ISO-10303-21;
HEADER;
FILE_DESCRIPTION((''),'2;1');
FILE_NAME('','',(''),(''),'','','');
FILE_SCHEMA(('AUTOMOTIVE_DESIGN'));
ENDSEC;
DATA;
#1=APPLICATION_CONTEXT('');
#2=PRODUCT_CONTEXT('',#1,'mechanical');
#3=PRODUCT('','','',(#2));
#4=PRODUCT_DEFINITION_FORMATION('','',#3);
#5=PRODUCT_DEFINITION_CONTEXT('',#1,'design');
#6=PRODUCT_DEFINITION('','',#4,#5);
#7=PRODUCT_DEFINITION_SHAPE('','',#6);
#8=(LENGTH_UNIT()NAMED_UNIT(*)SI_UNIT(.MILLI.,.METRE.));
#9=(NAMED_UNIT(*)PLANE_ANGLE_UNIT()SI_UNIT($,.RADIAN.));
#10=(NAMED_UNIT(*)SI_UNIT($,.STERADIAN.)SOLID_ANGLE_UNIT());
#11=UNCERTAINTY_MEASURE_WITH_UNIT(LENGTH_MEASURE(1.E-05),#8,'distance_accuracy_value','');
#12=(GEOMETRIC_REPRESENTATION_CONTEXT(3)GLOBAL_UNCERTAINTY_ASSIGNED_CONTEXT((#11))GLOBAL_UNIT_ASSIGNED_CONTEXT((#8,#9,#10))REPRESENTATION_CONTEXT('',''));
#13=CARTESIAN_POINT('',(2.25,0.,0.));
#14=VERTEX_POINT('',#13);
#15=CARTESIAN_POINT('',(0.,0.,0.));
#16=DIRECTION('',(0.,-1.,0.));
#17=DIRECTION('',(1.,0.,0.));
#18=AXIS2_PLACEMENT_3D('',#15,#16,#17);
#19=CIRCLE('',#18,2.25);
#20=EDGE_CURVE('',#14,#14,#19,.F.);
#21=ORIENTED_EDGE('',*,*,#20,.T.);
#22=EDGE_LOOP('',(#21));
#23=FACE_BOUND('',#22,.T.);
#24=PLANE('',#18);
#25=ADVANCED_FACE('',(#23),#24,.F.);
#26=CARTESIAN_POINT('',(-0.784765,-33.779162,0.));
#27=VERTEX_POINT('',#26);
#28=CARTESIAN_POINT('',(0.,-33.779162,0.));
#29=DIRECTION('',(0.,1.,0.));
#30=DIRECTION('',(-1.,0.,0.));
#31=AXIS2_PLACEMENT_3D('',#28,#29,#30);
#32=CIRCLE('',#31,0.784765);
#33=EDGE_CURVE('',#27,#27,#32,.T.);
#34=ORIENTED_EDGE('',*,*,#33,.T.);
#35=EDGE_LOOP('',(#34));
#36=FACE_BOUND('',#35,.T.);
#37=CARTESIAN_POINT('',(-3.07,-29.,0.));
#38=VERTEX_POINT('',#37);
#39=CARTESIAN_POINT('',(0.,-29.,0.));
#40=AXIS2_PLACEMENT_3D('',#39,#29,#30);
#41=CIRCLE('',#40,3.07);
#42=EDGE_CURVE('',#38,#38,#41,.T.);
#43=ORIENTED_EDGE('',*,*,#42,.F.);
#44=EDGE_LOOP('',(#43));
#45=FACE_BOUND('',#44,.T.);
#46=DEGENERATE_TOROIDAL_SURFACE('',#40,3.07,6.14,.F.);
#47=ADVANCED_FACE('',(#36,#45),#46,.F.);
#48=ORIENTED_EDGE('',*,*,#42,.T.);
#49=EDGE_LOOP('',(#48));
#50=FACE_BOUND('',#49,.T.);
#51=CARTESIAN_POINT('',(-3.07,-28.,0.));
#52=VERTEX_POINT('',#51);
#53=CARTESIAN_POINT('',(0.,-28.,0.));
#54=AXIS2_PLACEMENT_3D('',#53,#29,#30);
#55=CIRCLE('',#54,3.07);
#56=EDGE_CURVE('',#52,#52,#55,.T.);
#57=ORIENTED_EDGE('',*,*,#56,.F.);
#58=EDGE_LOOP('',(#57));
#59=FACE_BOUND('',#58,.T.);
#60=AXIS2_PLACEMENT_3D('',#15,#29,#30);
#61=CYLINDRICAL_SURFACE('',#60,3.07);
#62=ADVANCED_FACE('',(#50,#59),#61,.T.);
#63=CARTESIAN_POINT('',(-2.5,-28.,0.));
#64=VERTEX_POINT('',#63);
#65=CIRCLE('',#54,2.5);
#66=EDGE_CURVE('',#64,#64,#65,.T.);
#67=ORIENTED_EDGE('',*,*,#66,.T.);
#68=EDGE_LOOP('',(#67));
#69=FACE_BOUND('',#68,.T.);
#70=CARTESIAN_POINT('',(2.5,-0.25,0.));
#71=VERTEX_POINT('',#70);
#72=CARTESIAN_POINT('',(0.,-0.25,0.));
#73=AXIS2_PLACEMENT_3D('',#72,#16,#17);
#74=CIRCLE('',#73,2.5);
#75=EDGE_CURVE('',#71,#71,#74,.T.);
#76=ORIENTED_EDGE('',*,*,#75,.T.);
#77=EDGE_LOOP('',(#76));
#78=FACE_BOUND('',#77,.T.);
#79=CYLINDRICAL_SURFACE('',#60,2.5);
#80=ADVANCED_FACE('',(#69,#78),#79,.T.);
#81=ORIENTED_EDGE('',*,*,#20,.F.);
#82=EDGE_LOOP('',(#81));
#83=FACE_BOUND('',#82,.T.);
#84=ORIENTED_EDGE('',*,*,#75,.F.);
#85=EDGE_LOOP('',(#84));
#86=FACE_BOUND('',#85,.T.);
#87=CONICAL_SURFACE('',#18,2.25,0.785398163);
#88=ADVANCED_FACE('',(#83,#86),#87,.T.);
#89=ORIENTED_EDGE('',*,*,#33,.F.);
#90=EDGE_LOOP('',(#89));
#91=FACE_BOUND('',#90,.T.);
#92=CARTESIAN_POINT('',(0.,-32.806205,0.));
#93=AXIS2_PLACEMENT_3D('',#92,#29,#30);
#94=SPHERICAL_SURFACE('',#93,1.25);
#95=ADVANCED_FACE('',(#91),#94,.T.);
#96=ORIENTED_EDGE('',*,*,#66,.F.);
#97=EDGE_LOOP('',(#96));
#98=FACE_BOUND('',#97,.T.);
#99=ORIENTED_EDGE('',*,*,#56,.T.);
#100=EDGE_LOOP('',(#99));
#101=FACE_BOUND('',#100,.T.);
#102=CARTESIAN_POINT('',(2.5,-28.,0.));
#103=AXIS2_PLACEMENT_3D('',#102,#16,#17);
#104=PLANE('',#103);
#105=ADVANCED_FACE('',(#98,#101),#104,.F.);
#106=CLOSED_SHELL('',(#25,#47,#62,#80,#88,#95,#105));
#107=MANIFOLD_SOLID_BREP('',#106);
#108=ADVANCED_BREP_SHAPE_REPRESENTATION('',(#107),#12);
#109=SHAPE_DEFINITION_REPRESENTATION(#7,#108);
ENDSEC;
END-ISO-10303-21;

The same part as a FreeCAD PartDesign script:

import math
import FreeCAD as App
import Part
import Sketcher


def edges_at(feature, points):
    """Names of the edges that pass closest to the given points."""
    edges = feature.Shape.Edges
    near = lambda p: min(range(len(edges)), key=lambda i: edges[i].distToShape(Part.Vertex(*p))[0])
    return sorted({f"Edge{near(p) + 1}" for p in points})

doc = App.newDocument("Part")
body = doc.addObject("PartDesign::Body", "Body")

sketch1 = doc.addObject("Sketcher::SketchObject", "Sketch")
body.addObject(sketch1)
sketch1.AttachmentSupport = (doc.XY_Plane, [""])
sketch1.MapMode = "FlatFace"
sketch1.addGeometry(Part.LineSegment(App.Vector(2.5, 0, 0), App.Vector(0, 0, 0)), False)
sketch1.addGeometry(Part.LineSegment(App.Vector(0, 0, 0), App.Vector(0, -34.056205, 0)), False)
sketch1.addGeometry(Part.ArcOfCircle(Part.Circle(App.Vector(0, -32.806205, 0), App.Vector(0, 0, 1), 1.25), math.radians(-90), math.radians(-51.111131)), False)
sketch1.addGeometry(Part.ArcOfCircle(Part.Circle(App.Vector(-3.07, -29, 0), App.Vector(0, 0, 1), 6.14), math.radians(-51.111131), math.radians(0)), False)
sketch1.addGeometry(Part.LineSegment(App.Vector(3.07, -29, 0), App.Vector(3.07, -28, 0)), False)
sketch1.addGeometry(Part.LineSegment(App.Vector(3.07, -28, 0), App.Vector(2.5, -28, 0)), False)
sketch1.addGeometry(Part.LineSegment(App.Vector(2.5, -28, 0), App.Vector(2.5, 0, 0)), False)
sketch1.addConstraint(Sketcher.Constraint("Coincident", 0, 2, 1, 1))
sketch1.addConstraint(Sketcher.Constraint("Coincident", 1, 2, 2, 1))
sketch1.addConstraint(Sketcher.Constraint("Tangent", 2, 2, 3, 1))
sketch1.addConstraint(Sketcher.Constraint("Tangent", 3, 2, 4, 1))
sketch1.addConstraint(Sketcher.Constraint("Coincident", 4, 2, 5, 1))
sketch1.addConstraint(Sketcher.Constraint("Coincident", 5, 2, 6, 1))
sketch1.addConstraint(Sketcher.Constraint("Coincident", 6, 2, 0, 1))
sketch1.addConstraint(Sketcher.Constraint("Horizontal", 0))
sketch1.addConstraint(Sketcher.Constraint("Vertical", 1))
sketch1.addConstraint(Sketcher.Constraint("Vertical", 4))
sketch1.addConstraint(Sketcher.Constraint("Horizontal", 5))
sketch1.addConstraint(Sketcher.Constraint("Vertical", 6))
sketch1.addConstraint(Sketcher.Constraint("Coincident", 0, 2, -1, 1))
sketch1.addConstraint(Sketcher.Constraint("PointOnObject", 2, 3, -2))
sketch1.addConstraint(Sketcher.Constraint("DistanceY", 4, 1, 4, 2, 1.0))
sketch1.addConstraint(Sketcher.Constraint("DistanceY", 6, 1, 6, 2, 28.0))
sketch1.addConstraint(Sketcher.Constraint("Radius", 2, 1.25))
sketch1.addConstraint(Sketcher.Constraint("Radius", 3, 6.14))
sketch1.addConstraint(Sketcher.Constraint("DistanceX", 0, 2, 0, 1, 2.5))
sketch1.addConstraint(Sketcher.Constraint("DistanceX", 5, 2, 5, 1, 0.57))
revolution = doc.addObject("PartDesign::Revolution", "Revolution")
body.addObject(revolution)
revolution.Profile = sketch1
revolution.ReferenceAxis = (sketch1, ["V_Axis"])
revolution.Angle = 360
doc.recompute()

chamfer = doc.addObject("PartDesign::Chamfer", "Chamfer")
body.addObject(chamfer)
chamfer.Base = (revolution, edges_at(revolution, [(2.5, 0, 0)]))
chamfer.Size = 0.25

doc.recompute()
